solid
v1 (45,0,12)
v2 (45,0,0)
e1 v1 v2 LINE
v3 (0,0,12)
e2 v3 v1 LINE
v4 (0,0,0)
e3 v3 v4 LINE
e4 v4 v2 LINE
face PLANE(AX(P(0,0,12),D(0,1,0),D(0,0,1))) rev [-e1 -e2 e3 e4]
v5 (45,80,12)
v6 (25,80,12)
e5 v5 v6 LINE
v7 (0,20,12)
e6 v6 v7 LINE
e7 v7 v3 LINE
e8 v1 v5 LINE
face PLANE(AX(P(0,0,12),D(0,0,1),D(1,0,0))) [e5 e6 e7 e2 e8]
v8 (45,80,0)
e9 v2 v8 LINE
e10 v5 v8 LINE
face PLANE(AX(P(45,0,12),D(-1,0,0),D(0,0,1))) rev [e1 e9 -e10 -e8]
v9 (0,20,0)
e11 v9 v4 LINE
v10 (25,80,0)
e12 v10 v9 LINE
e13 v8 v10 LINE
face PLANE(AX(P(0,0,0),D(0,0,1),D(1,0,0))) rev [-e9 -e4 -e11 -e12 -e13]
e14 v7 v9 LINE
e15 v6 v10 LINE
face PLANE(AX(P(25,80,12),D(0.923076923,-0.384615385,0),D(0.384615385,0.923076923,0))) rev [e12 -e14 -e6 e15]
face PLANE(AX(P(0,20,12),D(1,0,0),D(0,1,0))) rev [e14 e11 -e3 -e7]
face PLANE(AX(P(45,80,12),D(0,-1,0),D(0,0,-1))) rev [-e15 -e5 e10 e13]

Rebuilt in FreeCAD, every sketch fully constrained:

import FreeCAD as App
import Part
import Sketcher

V = App.Vector

doc = App.newDocument("Part")
body = doc.addObject("PartDesign::Body", "Body")

sketch1 = body.newObject("Sketcher::SketchObject", "Sketch")
sketch1.AttachmentSupport = (doc.getObject("XY_Plane"), [""])
sketch1.MapMode = "FlatFace"
sketch1.addGeometry(Part.LineSegment(V(0, 0, 0), V(45, 0, 0)), False)
sketch1.addGeometry(Part.LineSegment(V(45, 0, 0), V(45, 80, 0)), False)
sketch1.addGeometry(Part.LineSegment(V(45, 80, 0), V(25, 80, 0)), False)
sketch1.addGeometry(Part.LineSegment(V(25, 80, 0), V(0, 20, 0)), False)
sketch1.addGeometry(Part.LineSegment(V(0, 20, 0), V(0, 0, 0)), False)
sketch1.addConstraint(Sketcher.Constraint("Coincident", 0, 2, 1, 1))
sketch1.addConstraint(Sketcher.Constraint("Coincident", 1, 2, 2, 1))
sketch1.addConstraint(Sketcher.Constraint("Coincident", 2, 2, 3, 1))
sketch1.addConstraint(Sketcher.Constraint("Coincident", 3, 2, 4, 1))
sketch1.addConstraint(Sketcher.Constraint("Coincident", 4, 2, 0, 1))
sketch1.addConstraint(Sketcher.Constraint("Horizontal", 0))
sketch1.addConstraint(Sketcher.Constraint("Vertical", 1))
sketch1.addConstraint(Sketcher.Constraint("Horizontal", 2))
sketch1.addConstraint(Sketcher.Constraint("Vertical", 4))
sketch1.addConstraint(Sketcher.Constraint("Coincident", 4, 2, -1, 1))
sketch1.addConstraint(Sketcher.Constraint("Equal", 2, 4))
sketch1.addConstraint(Sketcher.Constraint("DistanceX", 0, 1, 0, 2, 45.0))
sketch1.addConstraint(Sketcher.Constraint("DistanceX", 2, 2, 2, 1, 20.0))
sketch1.addConstraint(Sketcher.Constraint("DistanceY", 1, 1, 1, 2, 80.0))
pad1 = body.newObject("PartDesign::Pad", "Pad")
pad1.Profile = sketch1
pad1.Length = 12

doc.recompute()
